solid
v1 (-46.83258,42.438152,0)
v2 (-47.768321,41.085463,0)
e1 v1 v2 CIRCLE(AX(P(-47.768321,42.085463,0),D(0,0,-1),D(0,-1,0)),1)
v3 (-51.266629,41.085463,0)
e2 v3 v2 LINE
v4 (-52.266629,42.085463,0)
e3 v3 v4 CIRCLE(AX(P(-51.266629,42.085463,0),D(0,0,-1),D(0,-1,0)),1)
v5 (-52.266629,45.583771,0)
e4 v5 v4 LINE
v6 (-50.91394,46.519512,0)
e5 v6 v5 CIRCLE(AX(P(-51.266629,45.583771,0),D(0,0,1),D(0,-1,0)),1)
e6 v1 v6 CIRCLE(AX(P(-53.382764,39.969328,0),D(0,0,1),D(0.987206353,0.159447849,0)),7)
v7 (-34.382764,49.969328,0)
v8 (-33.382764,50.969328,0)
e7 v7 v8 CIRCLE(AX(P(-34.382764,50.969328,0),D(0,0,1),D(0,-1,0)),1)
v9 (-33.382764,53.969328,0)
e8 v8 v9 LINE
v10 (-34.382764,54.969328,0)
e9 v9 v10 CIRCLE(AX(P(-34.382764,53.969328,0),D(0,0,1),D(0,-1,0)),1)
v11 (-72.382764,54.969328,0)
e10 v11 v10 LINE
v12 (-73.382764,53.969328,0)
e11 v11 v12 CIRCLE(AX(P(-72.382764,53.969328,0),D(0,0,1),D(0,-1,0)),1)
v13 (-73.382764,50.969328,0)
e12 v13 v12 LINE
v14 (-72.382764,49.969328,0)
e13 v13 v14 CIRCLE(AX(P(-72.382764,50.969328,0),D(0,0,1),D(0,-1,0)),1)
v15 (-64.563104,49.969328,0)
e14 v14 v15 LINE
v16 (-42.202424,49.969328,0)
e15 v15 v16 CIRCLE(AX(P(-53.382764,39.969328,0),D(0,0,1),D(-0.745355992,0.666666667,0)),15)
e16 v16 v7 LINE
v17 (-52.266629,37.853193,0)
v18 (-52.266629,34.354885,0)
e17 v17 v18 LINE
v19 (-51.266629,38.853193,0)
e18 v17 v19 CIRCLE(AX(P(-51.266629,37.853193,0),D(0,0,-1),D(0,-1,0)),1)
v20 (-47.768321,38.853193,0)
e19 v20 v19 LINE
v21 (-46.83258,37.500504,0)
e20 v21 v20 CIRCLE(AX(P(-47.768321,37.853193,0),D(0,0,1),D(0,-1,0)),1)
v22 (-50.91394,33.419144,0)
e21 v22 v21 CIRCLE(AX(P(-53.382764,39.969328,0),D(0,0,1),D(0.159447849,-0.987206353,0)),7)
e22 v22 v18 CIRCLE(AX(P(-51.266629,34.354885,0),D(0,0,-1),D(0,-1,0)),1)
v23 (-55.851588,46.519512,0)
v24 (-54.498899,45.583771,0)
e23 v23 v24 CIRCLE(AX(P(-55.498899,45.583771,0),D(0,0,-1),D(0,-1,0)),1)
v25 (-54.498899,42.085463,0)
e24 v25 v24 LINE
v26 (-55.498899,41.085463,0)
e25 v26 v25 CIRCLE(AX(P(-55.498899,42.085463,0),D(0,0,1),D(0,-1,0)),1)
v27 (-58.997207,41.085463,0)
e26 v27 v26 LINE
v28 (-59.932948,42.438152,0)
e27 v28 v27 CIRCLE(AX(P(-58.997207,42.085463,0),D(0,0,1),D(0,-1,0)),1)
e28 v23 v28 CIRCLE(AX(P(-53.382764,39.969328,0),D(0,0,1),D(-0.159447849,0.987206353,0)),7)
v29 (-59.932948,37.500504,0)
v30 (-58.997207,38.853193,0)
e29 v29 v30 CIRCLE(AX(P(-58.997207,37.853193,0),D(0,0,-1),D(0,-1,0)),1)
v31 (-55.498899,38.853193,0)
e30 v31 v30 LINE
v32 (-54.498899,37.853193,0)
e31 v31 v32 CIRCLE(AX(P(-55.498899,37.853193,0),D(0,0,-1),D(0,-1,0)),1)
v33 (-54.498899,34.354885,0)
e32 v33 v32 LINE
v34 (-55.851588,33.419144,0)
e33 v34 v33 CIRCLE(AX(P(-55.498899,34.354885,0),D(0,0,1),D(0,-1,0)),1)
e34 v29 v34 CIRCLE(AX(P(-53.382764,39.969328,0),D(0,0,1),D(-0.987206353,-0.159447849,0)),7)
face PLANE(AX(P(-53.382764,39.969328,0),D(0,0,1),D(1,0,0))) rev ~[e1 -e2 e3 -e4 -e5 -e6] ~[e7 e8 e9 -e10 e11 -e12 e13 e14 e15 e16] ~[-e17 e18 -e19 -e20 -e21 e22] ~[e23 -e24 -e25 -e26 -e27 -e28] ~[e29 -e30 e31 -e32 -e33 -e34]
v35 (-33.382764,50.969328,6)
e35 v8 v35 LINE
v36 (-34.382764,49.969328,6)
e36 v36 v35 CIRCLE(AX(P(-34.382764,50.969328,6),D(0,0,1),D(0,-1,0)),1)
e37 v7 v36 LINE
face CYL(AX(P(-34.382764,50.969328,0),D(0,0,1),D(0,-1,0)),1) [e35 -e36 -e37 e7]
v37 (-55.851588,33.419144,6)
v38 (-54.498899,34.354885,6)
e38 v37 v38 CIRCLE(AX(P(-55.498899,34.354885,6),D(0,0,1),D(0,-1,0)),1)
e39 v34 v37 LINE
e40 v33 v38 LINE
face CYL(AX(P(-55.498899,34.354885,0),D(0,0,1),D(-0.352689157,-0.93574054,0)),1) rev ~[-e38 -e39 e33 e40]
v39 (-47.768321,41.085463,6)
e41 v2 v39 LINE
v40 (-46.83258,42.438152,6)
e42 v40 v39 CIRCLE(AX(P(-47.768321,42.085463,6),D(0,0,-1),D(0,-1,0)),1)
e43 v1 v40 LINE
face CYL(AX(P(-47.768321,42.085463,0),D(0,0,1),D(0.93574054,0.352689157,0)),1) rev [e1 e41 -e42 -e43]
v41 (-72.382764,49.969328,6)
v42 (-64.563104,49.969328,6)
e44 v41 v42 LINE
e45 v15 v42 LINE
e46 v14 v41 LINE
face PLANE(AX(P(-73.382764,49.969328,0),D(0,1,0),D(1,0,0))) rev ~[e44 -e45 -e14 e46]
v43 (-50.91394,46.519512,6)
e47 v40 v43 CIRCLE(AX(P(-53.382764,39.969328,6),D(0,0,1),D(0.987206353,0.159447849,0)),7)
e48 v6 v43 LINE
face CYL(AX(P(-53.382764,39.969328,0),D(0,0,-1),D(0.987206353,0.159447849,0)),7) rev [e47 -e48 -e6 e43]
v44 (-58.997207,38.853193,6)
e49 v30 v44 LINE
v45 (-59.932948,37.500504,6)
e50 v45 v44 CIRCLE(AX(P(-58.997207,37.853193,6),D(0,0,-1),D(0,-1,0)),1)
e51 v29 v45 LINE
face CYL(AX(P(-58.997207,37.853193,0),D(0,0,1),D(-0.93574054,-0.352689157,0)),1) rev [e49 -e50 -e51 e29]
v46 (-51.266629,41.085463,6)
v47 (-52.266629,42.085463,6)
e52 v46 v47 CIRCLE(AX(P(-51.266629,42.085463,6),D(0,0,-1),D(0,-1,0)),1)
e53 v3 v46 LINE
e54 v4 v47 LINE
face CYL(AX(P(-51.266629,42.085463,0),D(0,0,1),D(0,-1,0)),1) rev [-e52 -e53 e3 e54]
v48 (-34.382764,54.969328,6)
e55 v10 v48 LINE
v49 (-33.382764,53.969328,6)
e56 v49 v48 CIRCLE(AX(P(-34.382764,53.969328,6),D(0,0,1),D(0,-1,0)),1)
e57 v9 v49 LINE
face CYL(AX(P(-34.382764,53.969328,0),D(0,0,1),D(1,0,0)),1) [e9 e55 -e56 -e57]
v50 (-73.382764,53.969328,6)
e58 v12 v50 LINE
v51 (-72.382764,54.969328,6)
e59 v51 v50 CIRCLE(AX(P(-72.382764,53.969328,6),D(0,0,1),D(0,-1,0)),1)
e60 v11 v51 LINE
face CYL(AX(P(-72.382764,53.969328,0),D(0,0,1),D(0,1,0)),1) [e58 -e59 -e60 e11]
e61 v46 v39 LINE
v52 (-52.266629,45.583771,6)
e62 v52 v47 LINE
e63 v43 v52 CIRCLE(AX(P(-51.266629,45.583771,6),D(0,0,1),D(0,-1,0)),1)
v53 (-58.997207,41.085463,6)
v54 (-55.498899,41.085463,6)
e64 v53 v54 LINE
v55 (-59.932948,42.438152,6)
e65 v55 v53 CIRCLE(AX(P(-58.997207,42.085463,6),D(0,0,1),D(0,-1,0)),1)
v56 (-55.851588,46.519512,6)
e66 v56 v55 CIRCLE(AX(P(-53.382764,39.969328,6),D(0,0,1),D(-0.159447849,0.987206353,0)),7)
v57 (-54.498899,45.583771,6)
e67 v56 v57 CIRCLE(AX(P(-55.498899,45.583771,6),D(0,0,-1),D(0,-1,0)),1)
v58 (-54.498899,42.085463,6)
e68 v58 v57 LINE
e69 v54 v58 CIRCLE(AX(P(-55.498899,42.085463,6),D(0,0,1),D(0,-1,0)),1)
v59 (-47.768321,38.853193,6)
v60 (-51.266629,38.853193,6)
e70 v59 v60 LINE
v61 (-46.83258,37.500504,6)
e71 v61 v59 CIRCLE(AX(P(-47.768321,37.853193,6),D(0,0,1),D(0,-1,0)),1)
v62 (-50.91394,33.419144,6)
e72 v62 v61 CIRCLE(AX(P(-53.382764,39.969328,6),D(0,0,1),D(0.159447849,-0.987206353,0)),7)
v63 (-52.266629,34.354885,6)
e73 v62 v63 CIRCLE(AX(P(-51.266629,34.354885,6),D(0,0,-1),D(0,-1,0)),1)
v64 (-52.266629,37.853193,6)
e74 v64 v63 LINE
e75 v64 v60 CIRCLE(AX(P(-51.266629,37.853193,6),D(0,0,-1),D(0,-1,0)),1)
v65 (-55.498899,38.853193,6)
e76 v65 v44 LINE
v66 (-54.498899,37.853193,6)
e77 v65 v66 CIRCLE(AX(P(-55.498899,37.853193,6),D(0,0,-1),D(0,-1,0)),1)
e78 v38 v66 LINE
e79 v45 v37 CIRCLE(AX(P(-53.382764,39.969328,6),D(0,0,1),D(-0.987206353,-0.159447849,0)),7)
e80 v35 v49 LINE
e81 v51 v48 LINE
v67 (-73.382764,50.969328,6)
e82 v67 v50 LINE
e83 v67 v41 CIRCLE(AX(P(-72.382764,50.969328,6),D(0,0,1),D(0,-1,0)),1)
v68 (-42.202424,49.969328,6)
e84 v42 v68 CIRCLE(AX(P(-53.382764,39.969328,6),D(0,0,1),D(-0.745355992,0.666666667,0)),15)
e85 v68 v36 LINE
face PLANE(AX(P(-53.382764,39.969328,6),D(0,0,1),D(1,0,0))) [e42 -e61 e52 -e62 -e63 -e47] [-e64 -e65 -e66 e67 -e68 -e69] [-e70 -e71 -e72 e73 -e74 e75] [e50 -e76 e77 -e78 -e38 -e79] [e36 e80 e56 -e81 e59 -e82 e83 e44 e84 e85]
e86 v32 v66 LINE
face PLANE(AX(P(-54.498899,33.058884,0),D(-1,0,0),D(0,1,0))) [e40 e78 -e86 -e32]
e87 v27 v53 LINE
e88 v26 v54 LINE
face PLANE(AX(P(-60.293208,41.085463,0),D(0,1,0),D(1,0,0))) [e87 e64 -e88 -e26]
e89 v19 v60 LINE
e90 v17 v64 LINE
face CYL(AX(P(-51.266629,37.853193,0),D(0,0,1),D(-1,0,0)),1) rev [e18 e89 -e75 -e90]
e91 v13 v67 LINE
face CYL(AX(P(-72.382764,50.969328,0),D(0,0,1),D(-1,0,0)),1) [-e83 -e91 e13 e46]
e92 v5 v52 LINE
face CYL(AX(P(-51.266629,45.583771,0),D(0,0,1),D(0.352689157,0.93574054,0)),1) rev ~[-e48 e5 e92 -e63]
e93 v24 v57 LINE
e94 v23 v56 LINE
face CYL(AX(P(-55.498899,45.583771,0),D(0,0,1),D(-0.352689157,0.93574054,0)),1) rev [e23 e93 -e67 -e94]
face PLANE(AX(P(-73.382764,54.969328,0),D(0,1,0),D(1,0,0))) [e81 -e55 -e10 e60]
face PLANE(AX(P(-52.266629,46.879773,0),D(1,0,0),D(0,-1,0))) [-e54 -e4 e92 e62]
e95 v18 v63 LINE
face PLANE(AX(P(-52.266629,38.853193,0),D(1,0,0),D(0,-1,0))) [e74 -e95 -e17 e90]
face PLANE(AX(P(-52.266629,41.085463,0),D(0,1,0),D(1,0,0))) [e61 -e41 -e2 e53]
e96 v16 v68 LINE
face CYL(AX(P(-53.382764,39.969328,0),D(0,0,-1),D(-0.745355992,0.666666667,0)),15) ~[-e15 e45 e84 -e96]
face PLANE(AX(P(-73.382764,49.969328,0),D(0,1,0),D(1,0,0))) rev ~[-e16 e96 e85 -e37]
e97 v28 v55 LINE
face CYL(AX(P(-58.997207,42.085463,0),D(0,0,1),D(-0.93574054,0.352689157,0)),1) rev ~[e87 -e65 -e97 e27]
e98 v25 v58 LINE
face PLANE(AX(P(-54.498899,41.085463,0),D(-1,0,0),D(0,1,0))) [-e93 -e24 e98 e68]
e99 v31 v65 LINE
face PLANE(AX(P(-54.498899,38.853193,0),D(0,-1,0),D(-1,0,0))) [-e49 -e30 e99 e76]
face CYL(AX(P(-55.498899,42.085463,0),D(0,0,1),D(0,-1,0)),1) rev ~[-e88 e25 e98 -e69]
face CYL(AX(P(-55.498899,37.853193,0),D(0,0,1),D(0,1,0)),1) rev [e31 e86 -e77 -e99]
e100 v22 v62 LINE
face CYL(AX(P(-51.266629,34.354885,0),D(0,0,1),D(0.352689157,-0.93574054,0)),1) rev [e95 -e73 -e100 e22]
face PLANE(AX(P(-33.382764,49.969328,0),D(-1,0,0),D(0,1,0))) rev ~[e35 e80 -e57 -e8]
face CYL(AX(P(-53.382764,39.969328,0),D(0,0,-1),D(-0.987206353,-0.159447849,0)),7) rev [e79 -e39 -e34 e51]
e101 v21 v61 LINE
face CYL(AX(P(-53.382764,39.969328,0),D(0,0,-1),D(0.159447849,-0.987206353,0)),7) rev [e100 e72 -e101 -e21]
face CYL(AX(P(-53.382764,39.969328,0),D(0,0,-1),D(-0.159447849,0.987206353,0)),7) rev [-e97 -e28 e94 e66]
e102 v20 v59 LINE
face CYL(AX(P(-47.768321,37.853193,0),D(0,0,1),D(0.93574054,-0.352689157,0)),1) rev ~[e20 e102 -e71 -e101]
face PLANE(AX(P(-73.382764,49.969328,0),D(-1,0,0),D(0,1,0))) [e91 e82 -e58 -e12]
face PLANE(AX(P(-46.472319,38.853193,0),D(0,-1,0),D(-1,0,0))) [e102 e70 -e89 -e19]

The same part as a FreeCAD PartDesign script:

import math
import FreeCAD as App
import Part
import Sketcher

V = App.Vector


def edges_at(feature, points):
    """Names of the edges that pass closest to the given points."""
    edges = feature.Shape.Edges
    near = lambda p: min(range(len(edges)), key=lambda i: edges[i].distToShape(Part.Vertex(*p))[0])
    return sorted({f"Edge{near(p) + 1}" for p in points})

doc = App.newDocument("Part")
params = doc.addObject("Spreadsheet::Sheet", "Params")
for row, (alias, value) in enumerate([
    ("sketch1_radius", "15 mm"),
    ("sketch1_radius2", "7 mm"),
    ("sketch1_width", "40 mm"),
    ("sketch1_height", "5 mm"),
    ("pad1_length", "6 mm"),
    ("fillet_radius", "1 mm"),
    ("fillet2_radius", "1 mm"),
    ("fillet3_radius", "1 mm"),
], start=1):
    params.set(f"A{row}", alias)
    params.set(f"B{row}", "=" + value)
    params.setAlias(f"B{row}", alias)

body = doc.addObject("PartDesign::Body", "Body")

# Sketch on XY plane
sketch1 = body.newObject("Sketcher::SketchObject", "Sketch")
sketch1.AttachmentSupport = (doc.getObject("XY_Plane"), [""])
sketch1.MapMode = "FlatFace"
sketch1.addGeometry(Part.ArcOfCircle(Part.Circle(V(-53.382764, 39.969328, 0), V(0, 0, 1), 15), math.radians(138.189685), math.radians(401.810315)), False)
sketch1.addGeometry(Part.LineSegment(V(-42.202424, 49.969328, 0), V(-33.382764, 49.969328, 0)), False)
sketch1.addGeometry(Part.LineSegment(V(-33.382764, 49.969328, 0), V(-33.382764, 54.969328, 0)), False)
sketch1.addGeometry(Part.LineSegment(V(-33.382764, 54.969328, 0), V(-73.382764, 54.969328, 0)), False)
sketch1.addGeometry(Part.LineSegment(V(-73.382764, 54.969328, 0), V(-73.382764, 49.969328, 0)), False)
sketch1.addGeometry(Part.LineSegment(V(-73.382764, 49.969328, 0), V(-64.563104, 49.969328, 0)), False)
sketch1.addGeometry(Part.LineSegment(V(-46.472319, 41.085463, 0), V(-52.266629, 41.085463, 0)), False)
sketch1.addGeometry(Part.LineSegment(V(-52.266629, 41.085463, 0), V(-52.266629, 46.879773, 0)), False)
sketch1.addGeometry(Part.ArcOfCircle(Part.Circle(V(-53.382764, 39.969328, 0), V(0, 0, 1), 7), math.radians(9.174849), math.radians(80.825151)), False)
sketch1.addGeometry(Part.ArcOfCircle(Part.Circle(V(-53.382764, 39.969328, 0), V(0, 0, 1), 7), math.radians(-170.825151), math.radians(-99.174849)), False)
sketch1.addGeometry(Part.LineSegment(V(-60.293208, 38.853193, 0), V(-54.498899, 38.853193, 0)), False)
sketch1.addGeometry(Part.LineSegment(V(-54.498899, 38.853193, 0), V(-54.498899, 33.058884, 0)), False)
sketch1.addGeometry(Part.ArcOfCircle(Part.Circle(V(-53.382764, 39.969328, 0), V(0, 0, 1), 7), math.radians(-80.825151), math.radians(-9.174849)), False)
sketch1.addGeometry(Part.LineSegment(V(-52.266629, 33.058884, 0), V(-52.266629, 38.853193, 0)), False)
sketch1.addGeometry(Part.LineSegment(V(-52.266629, 38.853193, 0), V(-46.472319, 38.853193, 0)), False)
sketch1.addGeometry(Part.ArcOfCircle(Part.Circle(V(-53.382764, 39.969328, 0), V(0, 0, 1), 7), math.radians(99.174849), math.radians(170.825151)), False)
sketch1.addGeometry(Part.LineSegment(V(-54.498899, 46.879773, 0), V(-54.498899, 41.085463, 0)), False)
sketch1.addGeometry(Part.LineSegment(V(-54.498899, 41.085463, 0), V(-60.293208, 41.085463, 0)), False)
sketch1.addConstraint(Sketcher.Constraint("Coincident", 0, 2, 1, 1))
sketch1.addConstraint(Sketcher.Constraint("Coincident", 1, 2, 2, 1))
sketch1.addConstraint(Sketcher.Constraint("Coincident", 2, 2, 3, 1))
sketch1.addConstraint(Sketcher.Constraint("Coincident", 3, 2, 4, 1))
sketch1.addConstraint(Sketcher.Constraint("Coincident", 4, 2, 5, 1))
sketch1.addConstraint(Sketcher.Constraint("Coincident", 5, 2, 0, 1))
sketch1.addConstraint(Sketcher.Constraint("Coincident", 6, 2, 7, 1))
sketch1.addConstraint(Sketcher.Constraint("Coincident", 7, 2, 8, 2))
sketch1.addConstraint(Sketcher.Constraint("Coincident", 8, 1, 6, 1))
sketch1.addConstraint(Sketcher.Constraint("Coincident", 9, 1, 10, 1))
sketch1.addConstraint(Sketcher.Constraint("Coincident", 10, 2, 11, 1))
sketch1.addConstraint(Sketcher.Constraint("Coincident", 11, 2, 9, 2))
sketch1.addConstraint(Sketcher.Constraint("Coincident", 12, 1, 13, 1))
sketch1.addConstraint(Sketcher.Constraint("Coincident", 13, 2, 14, 1))
sketch1.addConstraint(Sketcher.Constraint("Coincident", 14, 2, 12, 2))
sketch1.addConstraint(Sketcher.Constraint("Coincident", 15, 1, 16, 1))
sketch1.addConstraint(Sketcher.Constraint("Coincident", 16, 2, 17, 1))
sketch1.addConstraint(Sketcher.Constraint("Coincident", 17, 2, 15, 2))
sketch1.addConstraint(Sketcher.Constraint("Horizontal", 1))
sketch1.addConstraint(Sketcher.Constraint("Vertical", 2))
sketch1.addConstraint(Sketcher.Constraint("Horizontal", 3))
sketch1.addConstraint(Sketcher.Constraint("Vertical", 4))
sketch1.addConstraint(Sketcher.Constraint("Horizontal", 5))
sketch1.addConstraint(Sketcher.Constraint("Horizontal", 6))
sketch1.addConstraint(Sketcher.Constraint("Vertical", 7))
sketch1.addConstraint(Sketcher.Constraint("Horizontal", 10))
sketch1.addConstraint(Sketcher.Constraint("Vertical", 11))
sketch1.addConstraint(Sketcher.Constraint("Vertical", 13))
sketch1.addConstraint(Sketcher.Constraint("Horizontal", 14))
sketch1.addConstraint(Sketcher.Constraint("Vertical", 16))
sketch1.addConstraint(Sketcher.Constraint("Horizontal", 17))
sketch1.addConstraint(Sketcher.Constraint("Coincident", 8, 3, 0, 3))
sketch1.addConstraint(Sketcher.Constraint("Coincident", 9, 3, 0, 3))
sketch1.addConstraint(Sketcher.Constraint("Coincident", 12, 3, 0, 3))
sketch1.addConstraint(Sketcher.Constraint("Coincident", 15, 3, 0, 3))
sketch1.addConstraint(Sketcher.Constraint("Equal", 8, 9))
sketch1.addConstraint(Sketcher.Constraint("Equal", 9, 12))
sketch1.addConstraint(Sketcher.Constraint("Equal", 12, 15))
sketch1.addConstraint(Sketcher.Constraint("Horizontal", 1, 2, 4, 2))
sketch1.addConstraint(Sketcher.Constraint("Horizontal", 11, 2, 12, 1))
sketch1.addConstraint(Sketcher.Constraint("Horizontal", 10, 2, 13, 2))
sketch1.addConstraint(Sketcher.Constraint("Horizontal", 7, 2, 15, 1))
sketch1.addConstraint(Sketcher.Constraint("Horizontal", 8, 1, 16, 2))
sketch1.addConstraint(Sketcher.Constraint("Vertical", 7, 2, 12, 1))
sketch1.addConstraint(Sketcher.Constraint("Vertical", 8, 1, 14, 2))
sketch1.addConstraint(Sketcher.Constraint("Equal", 1, 5))
sketch1.addConstraint(Sketcher.Constraint("Equal", 17, 7))
sketch1.addConstraint(Sketcher.Constraint("Radius", 0, 15.0))
sketch1.addConstraint(Sketcher.Constraint("Radius", 8, 7.0))
sketch1.addConstraint(Sketcher.Constraint("DistanceX", 3, 2, 3, 1, 40.0))
sketch1.addConstraint(Sketcher.Constraint("DistanceY", 2, 1, 2, 2, 5.0))
sketch1.addConstraint(Sketcher.Constraint("DistanceY", 9, 3, 0, 2, 10.0))
sketch1.addConstraint(Sketcher.Constraint("DistanceX", 6, 2, 6, 1, 5.79431))
sketch1.addConstraint(Sketcher.Constraint("DistanceX", 10, 2, -1, 1, 54.498899))
sketch1.addConstraint(Sketcher.Constraint("DistanceY", -1, 1, 0, 3, 39.969328))
sketch1.setExpression("Constraints[47]", "Params.sketch1_radius")
sketch1.setExpression("Constraints[48]", "Params.sketch1_radius2")
sketch1.setExpression("Constraints[49]", "Params.sketch1_width")
sketch1.setExpression("Constraints[50]", "Params.sketch1_height")
pad1 = body.newObject("PartDesign::Pad", "Pad")
pad1.Profile = sketch1
pad1.setExpression("Length", "Params.pad1_length")
doc.recompute()

fillet = body.newObject("PartDesign::Fillet", "Fillet")
fillet.Base = (pad1, edges_at(pad1, [
    (-60.293, 41.085, 3),
    (-54.499, 41.085, 3),
    (-54.499, 46.88, 3),
    (-52.267, 46.88, 3),
    (-52.267, 41.085, 3),
    (-46.472, 41.085, 3),
    (-54.499, 33.059, 3),
    (-60.293, 38.853, 3),
    (-46.472, 38.853, 3),
    (-52.267, 33.059, 3),
]))
fillet.setExpression("Radius", "Params.fillet_radius")
doc.recompute()

fillet2 = body.newObject("PartDesign::Fillet", "Fillet001")
fillet2.Base = (fillet, edges_at(fillet, [(-54.499, 38.853, 3), (-52.267, 38.853, 3)]))
fillet2.setExpression("Radius", "Params.fillet2_radius")
doc.recompute()

fillet3 = body.newObject("PartDesign::Fillet", "Fillet002")
fillet3.Base = (fillet2, edges_at(fillet2, [
    (-73.383, 49.969, 3),
    (-73.383, 54.969, 3),
    (-33.383, 54.969, 3),
    (-33.383, 49.969, 3),
]))
fillet3.setExpression("Radius", "Params.fillet3_radius")

doc.recompute()
